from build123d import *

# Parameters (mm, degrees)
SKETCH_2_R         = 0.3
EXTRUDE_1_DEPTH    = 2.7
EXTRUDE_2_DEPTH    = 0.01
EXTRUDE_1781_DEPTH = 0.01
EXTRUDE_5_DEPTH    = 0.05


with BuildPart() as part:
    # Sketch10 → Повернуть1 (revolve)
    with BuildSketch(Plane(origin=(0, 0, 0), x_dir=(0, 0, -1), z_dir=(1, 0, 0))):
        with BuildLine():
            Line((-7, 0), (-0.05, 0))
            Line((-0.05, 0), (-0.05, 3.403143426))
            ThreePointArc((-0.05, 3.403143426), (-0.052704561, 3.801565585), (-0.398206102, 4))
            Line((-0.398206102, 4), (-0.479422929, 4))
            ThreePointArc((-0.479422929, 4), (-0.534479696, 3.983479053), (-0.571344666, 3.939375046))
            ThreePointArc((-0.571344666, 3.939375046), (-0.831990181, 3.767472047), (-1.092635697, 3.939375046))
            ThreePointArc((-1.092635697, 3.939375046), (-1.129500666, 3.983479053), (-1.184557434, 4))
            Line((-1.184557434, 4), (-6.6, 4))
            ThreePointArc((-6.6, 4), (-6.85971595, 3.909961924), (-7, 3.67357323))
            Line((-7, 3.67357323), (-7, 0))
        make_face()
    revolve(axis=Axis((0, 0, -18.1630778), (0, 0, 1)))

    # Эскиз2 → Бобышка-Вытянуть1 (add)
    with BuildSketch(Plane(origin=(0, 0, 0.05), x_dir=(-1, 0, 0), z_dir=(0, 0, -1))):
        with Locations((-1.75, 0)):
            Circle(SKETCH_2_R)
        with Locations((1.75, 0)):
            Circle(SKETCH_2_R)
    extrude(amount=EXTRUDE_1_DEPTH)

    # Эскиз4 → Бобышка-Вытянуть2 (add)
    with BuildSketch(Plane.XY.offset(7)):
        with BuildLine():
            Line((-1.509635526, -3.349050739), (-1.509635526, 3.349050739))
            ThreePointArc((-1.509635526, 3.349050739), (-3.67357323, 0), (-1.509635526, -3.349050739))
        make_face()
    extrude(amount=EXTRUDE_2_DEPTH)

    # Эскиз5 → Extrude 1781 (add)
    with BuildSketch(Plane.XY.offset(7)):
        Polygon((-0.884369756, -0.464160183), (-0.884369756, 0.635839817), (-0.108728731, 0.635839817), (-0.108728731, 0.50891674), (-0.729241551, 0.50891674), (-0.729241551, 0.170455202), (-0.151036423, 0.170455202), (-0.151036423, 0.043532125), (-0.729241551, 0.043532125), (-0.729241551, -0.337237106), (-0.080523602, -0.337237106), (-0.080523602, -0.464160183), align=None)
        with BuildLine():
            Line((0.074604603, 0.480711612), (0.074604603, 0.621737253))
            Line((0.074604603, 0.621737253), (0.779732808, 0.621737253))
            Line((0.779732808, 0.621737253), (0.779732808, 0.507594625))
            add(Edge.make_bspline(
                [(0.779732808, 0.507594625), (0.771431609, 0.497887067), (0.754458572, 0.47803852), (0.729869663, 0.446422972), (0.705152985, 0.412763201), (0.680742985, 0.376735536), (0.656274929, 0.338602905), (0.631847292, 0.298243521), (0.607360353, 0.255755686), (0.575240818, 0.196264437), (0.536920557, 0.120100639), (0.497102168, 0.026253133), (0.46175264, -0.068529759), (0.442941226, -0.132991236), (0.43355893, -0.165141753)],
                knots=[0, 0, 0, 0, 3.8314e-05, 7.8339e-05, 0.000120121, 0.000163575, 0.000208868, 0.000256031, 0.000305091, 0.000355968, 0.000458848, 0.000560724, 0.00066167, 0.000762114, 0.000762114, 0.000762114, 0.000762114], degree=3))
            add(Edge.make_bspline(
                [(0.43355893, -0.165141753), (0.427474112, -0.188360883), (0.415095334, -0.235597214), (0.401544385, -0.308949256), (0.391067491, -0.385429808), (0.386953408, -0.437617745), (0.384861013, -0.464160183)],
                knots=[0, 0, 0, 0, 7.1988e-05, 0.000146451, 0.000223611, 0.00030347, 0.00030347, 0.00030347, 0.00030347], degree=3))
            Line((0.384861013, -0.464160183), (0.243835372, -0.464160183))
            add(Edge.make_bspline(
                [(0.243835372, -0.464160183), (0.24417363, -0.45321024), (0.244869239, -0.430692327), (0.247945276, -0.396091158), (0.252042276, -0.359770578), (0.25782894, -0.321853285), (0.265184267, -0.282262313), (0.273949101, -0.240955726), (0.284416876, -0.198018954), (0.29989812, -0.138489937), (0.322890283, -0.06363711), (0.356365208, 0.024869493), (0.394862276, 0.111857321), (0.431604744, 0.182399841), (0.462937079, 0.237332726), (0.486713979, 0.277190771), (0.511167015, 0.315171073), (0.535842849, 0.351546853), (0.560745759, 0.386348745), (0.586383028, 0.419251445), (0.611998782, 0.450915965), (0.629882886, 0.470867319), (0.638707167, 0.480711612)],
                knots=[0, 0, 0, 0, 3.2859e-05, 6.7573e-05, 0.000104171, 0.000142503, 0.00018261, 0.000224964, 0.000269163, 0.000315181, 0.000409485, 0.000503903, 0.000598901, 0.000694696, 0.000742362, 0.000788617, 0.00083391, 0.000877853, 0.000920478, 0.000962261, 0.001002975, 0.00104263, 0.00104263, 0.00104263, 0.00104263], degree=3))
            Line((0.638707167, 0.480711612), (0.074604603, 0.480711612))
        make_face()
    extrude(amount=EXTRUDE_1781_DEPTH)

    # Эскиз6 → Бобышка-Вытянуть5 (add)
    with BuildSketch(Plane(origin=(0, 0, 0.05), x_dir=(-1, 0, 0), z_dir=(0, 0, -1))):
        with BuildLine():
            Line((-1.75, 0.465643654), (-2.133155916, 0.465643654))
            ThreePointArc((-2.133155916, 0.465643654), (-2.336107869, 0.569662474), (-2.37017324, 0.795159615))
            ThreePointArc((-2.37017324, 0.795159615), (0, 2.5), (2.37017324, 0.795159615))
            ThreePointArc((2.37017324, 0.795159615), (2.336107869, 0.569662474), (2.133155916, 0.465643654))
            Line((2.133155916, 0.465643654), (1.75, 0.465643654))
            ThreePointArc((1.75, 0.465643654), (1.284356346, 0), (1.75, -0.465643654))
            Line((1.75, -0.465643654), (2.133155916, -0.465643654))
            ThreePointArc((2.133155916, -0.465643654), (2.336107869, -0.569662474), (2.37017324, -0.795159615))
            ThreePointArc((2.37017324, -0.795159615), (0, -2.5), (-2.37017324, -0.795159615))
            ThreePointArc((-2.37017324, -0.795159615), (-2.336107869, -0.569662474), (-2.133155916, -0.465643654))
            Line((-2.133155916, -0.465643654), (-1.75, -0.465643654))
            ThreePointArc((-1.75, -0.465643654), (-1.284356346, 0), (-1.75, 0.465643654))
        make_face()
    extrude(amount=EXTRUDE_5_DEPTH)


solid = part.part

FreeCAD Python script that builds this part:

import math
import FreeCAD as App
import Part
import Sketcher

doc = App.newDocument("Part")
body = doc.addObject("PartDesign::Body", "Body")

# Sketch on YZ plane
sketch1 = body.newObject("Sketcher::SketchObject", "Sketch")
sketch1.AttachmentSupport = (doc.getObject("YZ_Plane"), [""])
sketch1.MapMode = "FlatFace"
sketch1.addGeometry([
    Part.LineSegment(App.Vector(0, 7, 0), App.Vector(0, 0.05, 0)),  # 0
    Part.LineSegment(App.Vector(0, 0.05, 0), App.Vector(3.4, 0.05, 0)),  # 1
    Part.ArcOfCircle(Part.Circle(App.Vector(3.6, 0.4, 0), App.Vector(0, 0, 1), 0.4), math.radians(-119), math.radians(0)),  # 2
    Part.LineSegment(App.Vector(4, 0.4, 0), App.Vector(4, 0.48, 0)),  # 3
    Part.ArcOfCircle(Part.Circle(App.Vector(3.9, 0.48, 0), App.Vector(0, 0, 1), 0.1), math.radians(0), math.radians(67)),  # 4
    Part.ArcOfCircle(Part.Circle(App.Vector(4.05, 0.83, 0), App.Vector(0, 0, 1), 0.28), math.radians(113), math.radians(247)),  # 5
    Part.ArcOfCircle(Part.Circle(App.Vector(3.9, 1.18, 0), App.Vector(0, 0, 1), 0.1), math.radians(-67), math.radians(0)),  # 6
    Part.LineSegment(App.Vector(4, 1.18, 0), App.Vector(4, 6.6, 0)),  # 7
    Part.ArcOfCircle(Part.Circle(App.Vector(3.6, 6.61, 0), App.Vector(0, 0, 1), 0.4), math.radians(-1), math.radians(79)),  # 8
    Part.LineSegment(App.Vector(3.67, 7, 0), App.Vector(0, 7, 0)),  # 9
], False)
sketch1.addConstraint([
    Sketcher.Constraint("Coincident", 0, 2, 1, 1),
    Sketcher.Constraint("Coincident", 1, 2, 2, 1),
    Sketcher.Constraint("Tangent", 2, 2, 3, 1),
    Sketcher.Constraint("Tangent", 3, 2, 4, 1),
    Sketcher.Constraint("Tangent", 4, 2, 5, 2),
    Sketcher.Constraint("Tangent", 5, 1, 6, 1),
    Sketcher.Constraint("Tangent", 6, 2, 7, 1),
    Sketcher.Constraint("Coincident", 7, 2, 8, 1),
    Sketcher.Constraint("Coincident", 8, 2, 9, 1),
    Sketcher.Constraint("Coincident", 9, 2, 0, 1),
    Sketcher.Constraint("Vertical", 0),
    Sketcher.Constraint("Horizontal", 1),
    Sketcher.Constraint("Vertical", 3),
    Sketcher.Constraint("Vertical", 7),
    Sketcher.Constraint("Horizontal", 9),
    Sketcher.Constraint("Equal", 4, 6),
    Sketcher.Constraint("Equal", 2, 8),
    Sketcher.Constraint("PointOnObject", 0, 2, -2),
    Sketcher.Constraint("Vertical", 4, 3, 6, 3),
    Sketcher.Constraint("Radius", 2, 0.4),
    Sketcher.Constraint("Radius", 4, 0.1),
    Sketcher.Constraint("DistanceX", -1, 1, 2, 2, 4.0),
    Sketcher.Constraint("DistanceY", -1, 1, 8, 2, 7.0),
    Sketcher.Constraint("DistanceY", 0, 2, 0, 1, 6.95),
    Sketcher.Constraint("DistanceY", -1, 1, 7, 2, 6.6),
    Sketcher.Constraint("Radius", 5, 0.283552),
    Sketcher.Constraint("DistanceX", 8, 2, 5, 1, 0.265802),
    Sketcher.Constraint("DistanceX", 1, 1, 1, 2, 3.403143),
    Sketcher.Constraint("DistanceX", 9, 2, 9, 1, 3.673573),
    Sketcher.Constraint("DistanceY", 3, 1, 3, 2, 0.081217),
])
revolution = body.newObject("PartDesign::Revolution", "Revolution")
revolution.Profile = sketch1
revolution.ReferenceAxis = (sketch1, ["V_Axis"])
revolution.Angle = 360

# Sketch on XY plane
sketch2 = body.newObject("Sketcher::SketchObject", "Sketch001")
sketch2.AttachmentSupport = (doc.getObject("XY_Plane"), [""])
sketch2.MapMode = "FlatFace"
sketch2.AttachmentOffset = App.Placement(App.Vector(0, 0, 0.05), App.Rotation())
sketch2.addGeometry([
    Part.Circle(App.Vector(1.75, 0, 0), App.Vector(0, 0, 1), 0.3),
    Part.Circle(App.Vector(-1.75, 0, 0), App.Vector(0, 0, 1), 0.3),
], False)
sketch2.addConstraint([
    Sketcher.Constraint("Equal", 0, 1),
    Sketcher.Constraint("Symmetric", 0, 3, 1, 3, -1, 1),
    Sketcher.Constraint("PointOnObject", 0, 3, -1),
    Sketcher.Constraint("Diameter", 0, 0.6),
    Sketcher.Constraint("DistanceX", 1, 3, 0, 3, 3.5),
])
pad1 = body.newObject("PartDesign::Pad", "Pad")
pad1.Profile = sketch2
pad1.Length = 2.7
pad1.Reversed = True

# Sketch on XY plane
sketch3 = body.newObject("Sketcher::SketchObject", "Sketch002")
sketch3.AttachmentSupport = (doc.getObject("XY_Plane"), [""])
sketch3.MapMode = "FlatFace"
sketch3.AttachmentOffset = App.Placement(App.Vector(0, 0, 7), App.Rotation())
sketch3.addGeometry([
    Part.LineSegment(App.Vector(-1.5, -3.3, 0), App.Vector(-1.5, 3.3, 0)),
    Part.ArcOfCircle(Part.Circle(App.Vector(0, 0, 0), App.Vector(0, 0, 1), 3.7), math.radians(114), math.radians(246)),
], False)
sketch3.addConstraint([
    Sketcher.Constraint("Coincident", 0, 1, 1, 2),
    Sketcher.Constraint("Coincident", 1, 1, 0, 2),
    Sketcher.Constraint("Vertical", 0),
    Sketcher.Constraint("Coincident", 1, 3, -1, 1),
    Sketcher.Constraint("DistanceY", 0, 1, 0, 2, 6.698101),
    Sketcher.Constraint("Radius", 1, 3.673573),
])
pad2 = body.newObject("PartDesign::Pad", "Pad001")
pad2.Profile = sketch3
pad2.Length = 0.01

# Sketch on XY plane
sketch4 = body.newObject("Sketcher::SketchObject", "Sketch003")
sketch4.AttachmentSupport = (doc.getObject("XY_Plane"), [""])
sketch4.MapMode = "FlatFace"
sketch4.AttachmentOffset = App.Placement(App.Vector(0, 0, 7), App.Rotation())
sketch4.addGeometry([
    Part.LineSegment(App.Vector(-0.88437, 0.63584, 0), App.Vector(-0.88437, -0.46416, 0)),  # 0
    Part.LineSegment(App.Vector(-0.88437, -0.46416, 0), App.Vector(-0.080524, -0.46416, 0)),  # 1
    Part.LineSegment(App.Vector(-0.080524, -0.46416, 0), App.Vector(-0.080524, -0.337237, 0)),  # 2
    Part.LineSegment(App.Vector(-0.080524, -0.337237, 0), App.Vector(-0.729242, -0.337237, 0)),  # 3
    Part.LineSegment(App.Vector(-0.729242, -0.337237, 0), App.Vector(-0.729242, 0.043532, 0)),  # 4
    Part.LineSegment(App.Vector(-0.729242, 0.043532, 0), App.Vector(-0.151036, 0.043532, 0)),  # 5
    Part.LineSegment(App.Vector(-0.151036, 0.043532, 0), App.Vector(-0.151036, 0.170455, 0)),  # 6
    Part.LineSegment(App.Vector(-0.151036, 0.170455, 0), App.Vector(-0.729242, 0.170455, 0)),  # 7
    Part.LineSegment(App.Vector(-0.729242, 0.170455, 0), App.Vector(-0.729242, 0.508917, 0)),  # 8
    Part.LineSegment(App.Vector(-0.729242, 0.508917, 0), App.Vector(-0.108729, 0.508917, 0)),  # 9
    Part.LineSegment(App.Vector(-0.108729, 0.508917, 0), App.Vector(-0.108729, 0.63584, 0)),  # 10
    Part.LineSegment(App.Vector(-0.108729, 0.63584, 0), App.Vector(-0.88437, 0.63584, 0)),  # 11
    Part.LineSegment(App.Vector(0.074605, 0.621737, 0), App.Vector(0.074605, 0.480712, 0)),  # 12
    Part.LineSegment(App.Vector(0.074605, 0.480712, 0), App.Vector(0.638707, 0.480712, 0)),  # 13
    Part.BSplineCurve([App.Vector(0.243835, -0.46416, 0), App.Vector(0.244174, -0.45321, 0), App.Vector(0.244869, -0.430692, 0), App.Vector(0.247945, -0.396091, 0), App.Vector(0.252042, -0.359771, 0), App.Vector(0.257829, -0.321853, 0), App.Vector(0.265184, -0.282262, 0), App.Vector(0.273949, -0.240956, 0), App.Vector(0.284417, -0.198019, 0), App.Vector(0.299898, -0.13849, 0), App.Vector(0.32289, -0.063637, 0), App.Vector(0.356365, 0.024869, 0), App.Vector(0.394862, 0.111857, 0), App.Vector(0.431605, 0.1824, 0), App.Vector(0.462937, 0.237333, 0), App.Vector(0.486714, 0.277191, 0), App.Vector(0.511167, 0.315171, 0), App.Vector(0.535843, 0.351547, 0), App.Vector(0.560746, 0.386349, 0), App.Vector(0.586383, 0.419251, 0), App.Vector(0.611999, 0.450916, 0), App.Vector(0.629883, 0.470867, 0), App.Vector(0.638707, 0.480712, 0)], [4, 1, 1, 1, 1, 1, 1, 1, 1, 1, 1, 1, 1, 1, 1, 1, 1, 1, 1, 1, 4], [0, 0.000032859, 0.000067573, 0.000104171, 0.000142503, 0.00018261, 0.000224964, 0.000269163, 0.000315181, 0.000409485, 0.000503903, 0.000598901, 0.000694696, 0.000742362, 0.000788617, 0.00083391, 0.000877853, 0.000920478, 0.000962261, 0.001002975, 0.00104263], False, 3, [1, 1, 1, 1, 1, 1, 1, 1, 1, 1, 1, 1, 1, 1, 1, 1, 1, 1, 1, 1, 1, 1, 1], False),  # 14
    Part.LineSegment(App.Vector(0.243835, -0.46416, 0), App.Vector(0.384861, -0.46416, 0)),  # 15
    Part.BSplineCurve([App.Vector(0.433559, -0.165142, 0), App.Vector(0.427474, -0.188361, 0), App.Vector(0.415095, -0.235597, 0), App.Vector(0.401544, -0.308949, 0), App.Vector(0.391067, -0.38543, 0), App.Vector(0.386953, -0.437618, 0), App.Vector(0.384861, -0.46416, 0)], [4, 1, 1, 1, 4], [0, 0.000071988, 0.000146451, 0.000223611, 0.00030347], False, 3, [1, 1, 1, 1, 1, 1, 1], False),  # 16
    Part.BSplineCurve([App.Vector(0.779733, 0.507595, 0), App.Vector(0.771432, 0.497887, 0), App.Vector(0.754459, 0.478039, 0), App.Vector(0.72987, 0.446423, 0), App.Vector(0.705153, 0.412763, 0), App.Vector(0.680743, 0.376736, 0), App.Vector(0.656275, 0.338603, 0), App.Vector(0.631847, 0.298244, 0), App.Vector(0.60736, 0.255756, 0), App.Vector(0.575241, 0.196264, 0), App.Vector(0.536921, 0.120101, 0), App.Vector(0.497102, 0.026253, 0), App.Vector(0.461753, -0.06853, 0), App.Vector(0.442941, -0.132991, 0), App.Vector(0.433559, -0.165142, 0)], [4, 1, 1, 1, 1, 1, 1, 1, 1, 1, 1, 1, 4], [0, 0.000038314, 0.000078339, 0.000120121, 0.000163575, 0.000208868, 0.000256031, 0.000305091, 0.000355968, 0.000458848, 0.000560724, 0.00066167, 0.000762114], False, 3, [1, 1, 1, 1, 1, 1, 1, 1, 1, 1, 1, 1, 1, 1, 1], False),  # 17
    Part.LineSegment(App.Vector(0.779733, 0.507595, 0), App.Vector(0.779733, 0.621737, 0)),  # 18
    Part.LineSegment(App.Vector(0.779733, 0.621737, 0), App.Vector(0.074605, 0.621737, 0)),  # 19
], False)
sketch4.addConstraint([
    Sketcher.Constraint("Block", 14),
    Sketcher.Constraint("Block", 16),
    Sketcher.Constraint("Block", 17),
    Sketcher.Constraint("Coincident", 0, 2, 1, 1),
    Sketcher.Constraint("Coincident", 1, 2, 2, 1),
    Sketcher.Constraint("Coincident", 2, 2, 3, 1),
    Sketcher.Constraint("Coincident", 3, 2, 4, 1),
    Sketcher.Constraint("Coincident", 4, 2, 5, 1),
    Sketcher.Constraint("Coincident", 5, 2, 6, 1),
    Sketcher.Constraint("Coincident", 6, 2, 7, 1),
    Sketcher.Constraint("Coincident", 7, 2, 8, 1),
    Sketcher.Constraint("Coincident", 8, 2, 9, 1),
    Sketcher.Constraint("Coincident", 9, 2, 10, 1),
    Sketcher.Constraint("Coincident", 10, 2, 11, 1),
    Sketcher.Constraint("Coincident", 11, 2, 0, 1),
    Sketcher.Constraint("Coincident", 12, 2, 13, 1),
    Sketcher.Constraint("Coincident", 13, 2, 14, 2),
    Sketcher.Constraint("Coincident", 14, 1, 15, 1),
    Sketcher.Constraint("Coincident", 15, 2, 16, 2),
    Sketcher.Constraint("Coincident", 17, 1, 18, 1),
    Sketcher.Constraint("Coincident", 18, 2, 19, 1),
    Sketcher.Constraint("Coincident", 19, 2, 12, 1),
    Sketcher.Constraint("Vertical", 0),
    Sketcher.Constraint("Horizontal", 1),
    Sketcher.Constraint("Vertical", 2),
    Sketcher.Constraint("Horizontal", 3),
    Sketcher.Constraint("Vertical", 4),
    Sketcher.Constraint("Horizontal", 5),
    Sketcher.Constraint("Vertical", 6),
    Sketcher.Constraint("Horizontal", 7),
    Sketcher.Constraint("Vertical", 8),
    Sketcher.Constraint("Horizontal", 9),
    Sketcher.Constraint("Vertical", 10),
    Sketcher.Constraint("Horizontal", 11),
    Sketcher.Constraint("Vertical", 12),
    Sketcher.Constraint("Horizontal", 13),
    Sketcher.Constraint("Vertical", 18),
    Sketcher.Constraint("Horizontal", 19),
    Sketcher.Constraint("DistanceY", 0, 2, 0, 1, 1.1),
    Sketcher.Constraint("DistanceX", 11, 2, 11, 1, 0.775641),
    Sketcher.Constraint("DistanceX", 19, 2, 19, 1, 0.705128),
    Sketcher.Constraint("DistanceY", 4, 1, 4, 2, 0.380769),
    Sketcher.Constraint("DistanceY", 8, 1, 8, 2, 0.338462),
    Sketcher.Constraint("DistanceX", 1, 1, 1, 2, 0.803846),
    Sketcher.Constraint("DistanceX", 3, 2, 3, 1, 0.648718),
    Sketcher.Constraint("DistanceX", 5, 1, 5, 2, 0.578205),
    Sketcher.Constraint("DistanceX", 7, 2, 7, 1, 0.578205),
    Sketcher.Constraint("DistanceY", 2, 1, 2, 2, 0.126923),
    Sketcher.Constraint("DistanceY", 6, 1, 6, 2, 0.126923),
    Sketcher.Constraint("DistanceY", 12, 2, 12, 1, 0.141026),
    Sketcher.Constraint("DistanceX", 0, 2, -1, 1, 0.88437),
    Sketcher.Constraint("DistanceY", 0, 2, -1, 1, 0.46416),
])
pad3 = body.newObject("PartDesign::Pad", "Pad002")
pad3.Profile = sketch4
pad3.Length = 0.01

# Sketch on XY plane
sketch5 = body.newObject("Sketcher::SketchObject", "Sketch004")
sketch5.AttachmentSupport = (doc.getObject("XY_Plane"), [""])
sketch5.MapMode = "FlatFace"
sketch5.AttachmentOffset = App.Placement(App.Vector(0, 0, 0.05), App.Rotation())
sketch5.addGeometry([
    Part.LineSegment(App.Vector(2.13, 0.47, 0), App.Vector(1.75, 0.47, 0)),  # 0
    Part.ArcOfCircle(Part.Circle(App.Vector(1.75, 0, 0), App.Vector(0, 0, 1), 0.47), math.radians(90), math.radians(270)),  # 1
    Part.LineSegment(App.Vector(1.75, -0.47, 0), App.Vector(2.13, -0.47, 0)),  # 2
    Part.ArcOfCircle(Part.Circle(App.Vector(2.13, -0.72, 0), App.Vector(0, 0, 1), 0.25), math.radians(-19), math.radians(90)),  # 3
    Part.ArcOfCircle(Part.Circle(App.Vector(0, 0, 0), App.Vector(0, 0, 1), 2.5), math.radians(-161), math.radians(-19)),  # 4
    Part.ArcOfCircle(Part.Circle(App.Vector(-2.13, -0.72, 0), App.Vector(0, 0, 1), 0.25), math.radians(90), math.radians(199)),  # 5
    Part.LineSegment(App.Vector(-2.13, -0.47, 0), App.Vector(-1.75, -0.47, 0)),  # 6
    Part.ArcOfCircle(Part.Circle(App.Vector(-1.75, 0, 0), App.Vector(0, 0, 1), 0.47), math.radians(-90), math.radians(90)),  # 7
    Part.LineSegment(App.Vector(-1.75, 0.47, 0), App.Vector(-2.13, 0.47, 0)),  # 8
    Part.ArcOfCircle(Part.Circle(App.Vector(-2.13, 0.72, 0), App.Vector(0, 0, 1), 0.25), math.radians(161), math.radians(270)),  # 9
    Part.ArcOfCircle(Part.Circle(App.Vector(0, 0, 0), App.Vector(0, 0, 1), 2.5), math.radians(19), math.radians(161)),  # 10
    Part.ArcOfCircle(Part.Circle(App.Vector(2.13, 0.72, 0), App.Vector(0, 0, 1), 0.25), math.radians(-90), math.radians(19)),  # 11
], False)
sketch5.addConstraint([
    Sketcher.Constraint("Tangent", 0, 2, 1, 1),
    Sketcher.Constraint("Tangent", 1, 2, 2, 1),
    Sketcher.Constraint("Tangent", 2, 2, 3, 2),
    Sketcher.Constraint("Tangent", 3, 1, 4, 2),
    Sketcher.Constraint("Tangent", 4, 1, 5, 2),
    Sketcher.Constraint("Tangent", 5, 1, 6, 1),
    Sketcher.Constraint("Tangent", 6, 2, 7, 1),
    Sketcher.Constraint("Tangent", 7, 2, 8, 1),
    Sketcher.Constraint("Tangent", 8, 2, 9, 2),
    Sketcher.Constraint("Tangent", 9, 1, 10, 2),
    Sketcher.Constraint("Tangent", 10, 1, 11, 2),
    Sketcher.Constraint("Tangent", 11, 1, 0, 1),
    Sketcher.Constraint("Horizontal", 0),
    Sketcher.Constraint("Horizontal", 2),
    Sketcher.Constraint("Horizontal", 6),
    Sketcher.Constraint("Horizontal", 8),
    Sketcher.Constraint("Coincident", 4, 3, -1, 1),
    Sketcher.Constraint("Coincident", 10, 3, -1, 1),
    Sketcher.Constraint("Equal", 3, 5),
    Sketcher.Constraint("Equal", 1, 7),
    Sketcher.Constraint("Equal", 5, 9),
    Sketcher.Constraint("Equal", 4, 10),
    Sketcher.Constraint("Equal", 9, 11),
    Sketcher.Constraint("Symmetric", 1, 3, 7, 3, -1, 1),
    Sketcher.Constraint("PointOnObject", 1, 3, -1),
    Sketcher.Constraint("Radius", 4, 2.5),
    Sketcher.Constraint("Radius", 3, 0.25),
    Sketcher.Constraint("DistanceX", 7, 3, 1, 3, 3.5),
    Sketcher.Constraint("Radius", 1, 0.465644),
])
pad4 = body.newObject("PartDesign::Pad", "Pad003")
pad4.Profile = sketch5
pad4.Length = 0.05
pad4.Reversed = True

doc.recompute()
